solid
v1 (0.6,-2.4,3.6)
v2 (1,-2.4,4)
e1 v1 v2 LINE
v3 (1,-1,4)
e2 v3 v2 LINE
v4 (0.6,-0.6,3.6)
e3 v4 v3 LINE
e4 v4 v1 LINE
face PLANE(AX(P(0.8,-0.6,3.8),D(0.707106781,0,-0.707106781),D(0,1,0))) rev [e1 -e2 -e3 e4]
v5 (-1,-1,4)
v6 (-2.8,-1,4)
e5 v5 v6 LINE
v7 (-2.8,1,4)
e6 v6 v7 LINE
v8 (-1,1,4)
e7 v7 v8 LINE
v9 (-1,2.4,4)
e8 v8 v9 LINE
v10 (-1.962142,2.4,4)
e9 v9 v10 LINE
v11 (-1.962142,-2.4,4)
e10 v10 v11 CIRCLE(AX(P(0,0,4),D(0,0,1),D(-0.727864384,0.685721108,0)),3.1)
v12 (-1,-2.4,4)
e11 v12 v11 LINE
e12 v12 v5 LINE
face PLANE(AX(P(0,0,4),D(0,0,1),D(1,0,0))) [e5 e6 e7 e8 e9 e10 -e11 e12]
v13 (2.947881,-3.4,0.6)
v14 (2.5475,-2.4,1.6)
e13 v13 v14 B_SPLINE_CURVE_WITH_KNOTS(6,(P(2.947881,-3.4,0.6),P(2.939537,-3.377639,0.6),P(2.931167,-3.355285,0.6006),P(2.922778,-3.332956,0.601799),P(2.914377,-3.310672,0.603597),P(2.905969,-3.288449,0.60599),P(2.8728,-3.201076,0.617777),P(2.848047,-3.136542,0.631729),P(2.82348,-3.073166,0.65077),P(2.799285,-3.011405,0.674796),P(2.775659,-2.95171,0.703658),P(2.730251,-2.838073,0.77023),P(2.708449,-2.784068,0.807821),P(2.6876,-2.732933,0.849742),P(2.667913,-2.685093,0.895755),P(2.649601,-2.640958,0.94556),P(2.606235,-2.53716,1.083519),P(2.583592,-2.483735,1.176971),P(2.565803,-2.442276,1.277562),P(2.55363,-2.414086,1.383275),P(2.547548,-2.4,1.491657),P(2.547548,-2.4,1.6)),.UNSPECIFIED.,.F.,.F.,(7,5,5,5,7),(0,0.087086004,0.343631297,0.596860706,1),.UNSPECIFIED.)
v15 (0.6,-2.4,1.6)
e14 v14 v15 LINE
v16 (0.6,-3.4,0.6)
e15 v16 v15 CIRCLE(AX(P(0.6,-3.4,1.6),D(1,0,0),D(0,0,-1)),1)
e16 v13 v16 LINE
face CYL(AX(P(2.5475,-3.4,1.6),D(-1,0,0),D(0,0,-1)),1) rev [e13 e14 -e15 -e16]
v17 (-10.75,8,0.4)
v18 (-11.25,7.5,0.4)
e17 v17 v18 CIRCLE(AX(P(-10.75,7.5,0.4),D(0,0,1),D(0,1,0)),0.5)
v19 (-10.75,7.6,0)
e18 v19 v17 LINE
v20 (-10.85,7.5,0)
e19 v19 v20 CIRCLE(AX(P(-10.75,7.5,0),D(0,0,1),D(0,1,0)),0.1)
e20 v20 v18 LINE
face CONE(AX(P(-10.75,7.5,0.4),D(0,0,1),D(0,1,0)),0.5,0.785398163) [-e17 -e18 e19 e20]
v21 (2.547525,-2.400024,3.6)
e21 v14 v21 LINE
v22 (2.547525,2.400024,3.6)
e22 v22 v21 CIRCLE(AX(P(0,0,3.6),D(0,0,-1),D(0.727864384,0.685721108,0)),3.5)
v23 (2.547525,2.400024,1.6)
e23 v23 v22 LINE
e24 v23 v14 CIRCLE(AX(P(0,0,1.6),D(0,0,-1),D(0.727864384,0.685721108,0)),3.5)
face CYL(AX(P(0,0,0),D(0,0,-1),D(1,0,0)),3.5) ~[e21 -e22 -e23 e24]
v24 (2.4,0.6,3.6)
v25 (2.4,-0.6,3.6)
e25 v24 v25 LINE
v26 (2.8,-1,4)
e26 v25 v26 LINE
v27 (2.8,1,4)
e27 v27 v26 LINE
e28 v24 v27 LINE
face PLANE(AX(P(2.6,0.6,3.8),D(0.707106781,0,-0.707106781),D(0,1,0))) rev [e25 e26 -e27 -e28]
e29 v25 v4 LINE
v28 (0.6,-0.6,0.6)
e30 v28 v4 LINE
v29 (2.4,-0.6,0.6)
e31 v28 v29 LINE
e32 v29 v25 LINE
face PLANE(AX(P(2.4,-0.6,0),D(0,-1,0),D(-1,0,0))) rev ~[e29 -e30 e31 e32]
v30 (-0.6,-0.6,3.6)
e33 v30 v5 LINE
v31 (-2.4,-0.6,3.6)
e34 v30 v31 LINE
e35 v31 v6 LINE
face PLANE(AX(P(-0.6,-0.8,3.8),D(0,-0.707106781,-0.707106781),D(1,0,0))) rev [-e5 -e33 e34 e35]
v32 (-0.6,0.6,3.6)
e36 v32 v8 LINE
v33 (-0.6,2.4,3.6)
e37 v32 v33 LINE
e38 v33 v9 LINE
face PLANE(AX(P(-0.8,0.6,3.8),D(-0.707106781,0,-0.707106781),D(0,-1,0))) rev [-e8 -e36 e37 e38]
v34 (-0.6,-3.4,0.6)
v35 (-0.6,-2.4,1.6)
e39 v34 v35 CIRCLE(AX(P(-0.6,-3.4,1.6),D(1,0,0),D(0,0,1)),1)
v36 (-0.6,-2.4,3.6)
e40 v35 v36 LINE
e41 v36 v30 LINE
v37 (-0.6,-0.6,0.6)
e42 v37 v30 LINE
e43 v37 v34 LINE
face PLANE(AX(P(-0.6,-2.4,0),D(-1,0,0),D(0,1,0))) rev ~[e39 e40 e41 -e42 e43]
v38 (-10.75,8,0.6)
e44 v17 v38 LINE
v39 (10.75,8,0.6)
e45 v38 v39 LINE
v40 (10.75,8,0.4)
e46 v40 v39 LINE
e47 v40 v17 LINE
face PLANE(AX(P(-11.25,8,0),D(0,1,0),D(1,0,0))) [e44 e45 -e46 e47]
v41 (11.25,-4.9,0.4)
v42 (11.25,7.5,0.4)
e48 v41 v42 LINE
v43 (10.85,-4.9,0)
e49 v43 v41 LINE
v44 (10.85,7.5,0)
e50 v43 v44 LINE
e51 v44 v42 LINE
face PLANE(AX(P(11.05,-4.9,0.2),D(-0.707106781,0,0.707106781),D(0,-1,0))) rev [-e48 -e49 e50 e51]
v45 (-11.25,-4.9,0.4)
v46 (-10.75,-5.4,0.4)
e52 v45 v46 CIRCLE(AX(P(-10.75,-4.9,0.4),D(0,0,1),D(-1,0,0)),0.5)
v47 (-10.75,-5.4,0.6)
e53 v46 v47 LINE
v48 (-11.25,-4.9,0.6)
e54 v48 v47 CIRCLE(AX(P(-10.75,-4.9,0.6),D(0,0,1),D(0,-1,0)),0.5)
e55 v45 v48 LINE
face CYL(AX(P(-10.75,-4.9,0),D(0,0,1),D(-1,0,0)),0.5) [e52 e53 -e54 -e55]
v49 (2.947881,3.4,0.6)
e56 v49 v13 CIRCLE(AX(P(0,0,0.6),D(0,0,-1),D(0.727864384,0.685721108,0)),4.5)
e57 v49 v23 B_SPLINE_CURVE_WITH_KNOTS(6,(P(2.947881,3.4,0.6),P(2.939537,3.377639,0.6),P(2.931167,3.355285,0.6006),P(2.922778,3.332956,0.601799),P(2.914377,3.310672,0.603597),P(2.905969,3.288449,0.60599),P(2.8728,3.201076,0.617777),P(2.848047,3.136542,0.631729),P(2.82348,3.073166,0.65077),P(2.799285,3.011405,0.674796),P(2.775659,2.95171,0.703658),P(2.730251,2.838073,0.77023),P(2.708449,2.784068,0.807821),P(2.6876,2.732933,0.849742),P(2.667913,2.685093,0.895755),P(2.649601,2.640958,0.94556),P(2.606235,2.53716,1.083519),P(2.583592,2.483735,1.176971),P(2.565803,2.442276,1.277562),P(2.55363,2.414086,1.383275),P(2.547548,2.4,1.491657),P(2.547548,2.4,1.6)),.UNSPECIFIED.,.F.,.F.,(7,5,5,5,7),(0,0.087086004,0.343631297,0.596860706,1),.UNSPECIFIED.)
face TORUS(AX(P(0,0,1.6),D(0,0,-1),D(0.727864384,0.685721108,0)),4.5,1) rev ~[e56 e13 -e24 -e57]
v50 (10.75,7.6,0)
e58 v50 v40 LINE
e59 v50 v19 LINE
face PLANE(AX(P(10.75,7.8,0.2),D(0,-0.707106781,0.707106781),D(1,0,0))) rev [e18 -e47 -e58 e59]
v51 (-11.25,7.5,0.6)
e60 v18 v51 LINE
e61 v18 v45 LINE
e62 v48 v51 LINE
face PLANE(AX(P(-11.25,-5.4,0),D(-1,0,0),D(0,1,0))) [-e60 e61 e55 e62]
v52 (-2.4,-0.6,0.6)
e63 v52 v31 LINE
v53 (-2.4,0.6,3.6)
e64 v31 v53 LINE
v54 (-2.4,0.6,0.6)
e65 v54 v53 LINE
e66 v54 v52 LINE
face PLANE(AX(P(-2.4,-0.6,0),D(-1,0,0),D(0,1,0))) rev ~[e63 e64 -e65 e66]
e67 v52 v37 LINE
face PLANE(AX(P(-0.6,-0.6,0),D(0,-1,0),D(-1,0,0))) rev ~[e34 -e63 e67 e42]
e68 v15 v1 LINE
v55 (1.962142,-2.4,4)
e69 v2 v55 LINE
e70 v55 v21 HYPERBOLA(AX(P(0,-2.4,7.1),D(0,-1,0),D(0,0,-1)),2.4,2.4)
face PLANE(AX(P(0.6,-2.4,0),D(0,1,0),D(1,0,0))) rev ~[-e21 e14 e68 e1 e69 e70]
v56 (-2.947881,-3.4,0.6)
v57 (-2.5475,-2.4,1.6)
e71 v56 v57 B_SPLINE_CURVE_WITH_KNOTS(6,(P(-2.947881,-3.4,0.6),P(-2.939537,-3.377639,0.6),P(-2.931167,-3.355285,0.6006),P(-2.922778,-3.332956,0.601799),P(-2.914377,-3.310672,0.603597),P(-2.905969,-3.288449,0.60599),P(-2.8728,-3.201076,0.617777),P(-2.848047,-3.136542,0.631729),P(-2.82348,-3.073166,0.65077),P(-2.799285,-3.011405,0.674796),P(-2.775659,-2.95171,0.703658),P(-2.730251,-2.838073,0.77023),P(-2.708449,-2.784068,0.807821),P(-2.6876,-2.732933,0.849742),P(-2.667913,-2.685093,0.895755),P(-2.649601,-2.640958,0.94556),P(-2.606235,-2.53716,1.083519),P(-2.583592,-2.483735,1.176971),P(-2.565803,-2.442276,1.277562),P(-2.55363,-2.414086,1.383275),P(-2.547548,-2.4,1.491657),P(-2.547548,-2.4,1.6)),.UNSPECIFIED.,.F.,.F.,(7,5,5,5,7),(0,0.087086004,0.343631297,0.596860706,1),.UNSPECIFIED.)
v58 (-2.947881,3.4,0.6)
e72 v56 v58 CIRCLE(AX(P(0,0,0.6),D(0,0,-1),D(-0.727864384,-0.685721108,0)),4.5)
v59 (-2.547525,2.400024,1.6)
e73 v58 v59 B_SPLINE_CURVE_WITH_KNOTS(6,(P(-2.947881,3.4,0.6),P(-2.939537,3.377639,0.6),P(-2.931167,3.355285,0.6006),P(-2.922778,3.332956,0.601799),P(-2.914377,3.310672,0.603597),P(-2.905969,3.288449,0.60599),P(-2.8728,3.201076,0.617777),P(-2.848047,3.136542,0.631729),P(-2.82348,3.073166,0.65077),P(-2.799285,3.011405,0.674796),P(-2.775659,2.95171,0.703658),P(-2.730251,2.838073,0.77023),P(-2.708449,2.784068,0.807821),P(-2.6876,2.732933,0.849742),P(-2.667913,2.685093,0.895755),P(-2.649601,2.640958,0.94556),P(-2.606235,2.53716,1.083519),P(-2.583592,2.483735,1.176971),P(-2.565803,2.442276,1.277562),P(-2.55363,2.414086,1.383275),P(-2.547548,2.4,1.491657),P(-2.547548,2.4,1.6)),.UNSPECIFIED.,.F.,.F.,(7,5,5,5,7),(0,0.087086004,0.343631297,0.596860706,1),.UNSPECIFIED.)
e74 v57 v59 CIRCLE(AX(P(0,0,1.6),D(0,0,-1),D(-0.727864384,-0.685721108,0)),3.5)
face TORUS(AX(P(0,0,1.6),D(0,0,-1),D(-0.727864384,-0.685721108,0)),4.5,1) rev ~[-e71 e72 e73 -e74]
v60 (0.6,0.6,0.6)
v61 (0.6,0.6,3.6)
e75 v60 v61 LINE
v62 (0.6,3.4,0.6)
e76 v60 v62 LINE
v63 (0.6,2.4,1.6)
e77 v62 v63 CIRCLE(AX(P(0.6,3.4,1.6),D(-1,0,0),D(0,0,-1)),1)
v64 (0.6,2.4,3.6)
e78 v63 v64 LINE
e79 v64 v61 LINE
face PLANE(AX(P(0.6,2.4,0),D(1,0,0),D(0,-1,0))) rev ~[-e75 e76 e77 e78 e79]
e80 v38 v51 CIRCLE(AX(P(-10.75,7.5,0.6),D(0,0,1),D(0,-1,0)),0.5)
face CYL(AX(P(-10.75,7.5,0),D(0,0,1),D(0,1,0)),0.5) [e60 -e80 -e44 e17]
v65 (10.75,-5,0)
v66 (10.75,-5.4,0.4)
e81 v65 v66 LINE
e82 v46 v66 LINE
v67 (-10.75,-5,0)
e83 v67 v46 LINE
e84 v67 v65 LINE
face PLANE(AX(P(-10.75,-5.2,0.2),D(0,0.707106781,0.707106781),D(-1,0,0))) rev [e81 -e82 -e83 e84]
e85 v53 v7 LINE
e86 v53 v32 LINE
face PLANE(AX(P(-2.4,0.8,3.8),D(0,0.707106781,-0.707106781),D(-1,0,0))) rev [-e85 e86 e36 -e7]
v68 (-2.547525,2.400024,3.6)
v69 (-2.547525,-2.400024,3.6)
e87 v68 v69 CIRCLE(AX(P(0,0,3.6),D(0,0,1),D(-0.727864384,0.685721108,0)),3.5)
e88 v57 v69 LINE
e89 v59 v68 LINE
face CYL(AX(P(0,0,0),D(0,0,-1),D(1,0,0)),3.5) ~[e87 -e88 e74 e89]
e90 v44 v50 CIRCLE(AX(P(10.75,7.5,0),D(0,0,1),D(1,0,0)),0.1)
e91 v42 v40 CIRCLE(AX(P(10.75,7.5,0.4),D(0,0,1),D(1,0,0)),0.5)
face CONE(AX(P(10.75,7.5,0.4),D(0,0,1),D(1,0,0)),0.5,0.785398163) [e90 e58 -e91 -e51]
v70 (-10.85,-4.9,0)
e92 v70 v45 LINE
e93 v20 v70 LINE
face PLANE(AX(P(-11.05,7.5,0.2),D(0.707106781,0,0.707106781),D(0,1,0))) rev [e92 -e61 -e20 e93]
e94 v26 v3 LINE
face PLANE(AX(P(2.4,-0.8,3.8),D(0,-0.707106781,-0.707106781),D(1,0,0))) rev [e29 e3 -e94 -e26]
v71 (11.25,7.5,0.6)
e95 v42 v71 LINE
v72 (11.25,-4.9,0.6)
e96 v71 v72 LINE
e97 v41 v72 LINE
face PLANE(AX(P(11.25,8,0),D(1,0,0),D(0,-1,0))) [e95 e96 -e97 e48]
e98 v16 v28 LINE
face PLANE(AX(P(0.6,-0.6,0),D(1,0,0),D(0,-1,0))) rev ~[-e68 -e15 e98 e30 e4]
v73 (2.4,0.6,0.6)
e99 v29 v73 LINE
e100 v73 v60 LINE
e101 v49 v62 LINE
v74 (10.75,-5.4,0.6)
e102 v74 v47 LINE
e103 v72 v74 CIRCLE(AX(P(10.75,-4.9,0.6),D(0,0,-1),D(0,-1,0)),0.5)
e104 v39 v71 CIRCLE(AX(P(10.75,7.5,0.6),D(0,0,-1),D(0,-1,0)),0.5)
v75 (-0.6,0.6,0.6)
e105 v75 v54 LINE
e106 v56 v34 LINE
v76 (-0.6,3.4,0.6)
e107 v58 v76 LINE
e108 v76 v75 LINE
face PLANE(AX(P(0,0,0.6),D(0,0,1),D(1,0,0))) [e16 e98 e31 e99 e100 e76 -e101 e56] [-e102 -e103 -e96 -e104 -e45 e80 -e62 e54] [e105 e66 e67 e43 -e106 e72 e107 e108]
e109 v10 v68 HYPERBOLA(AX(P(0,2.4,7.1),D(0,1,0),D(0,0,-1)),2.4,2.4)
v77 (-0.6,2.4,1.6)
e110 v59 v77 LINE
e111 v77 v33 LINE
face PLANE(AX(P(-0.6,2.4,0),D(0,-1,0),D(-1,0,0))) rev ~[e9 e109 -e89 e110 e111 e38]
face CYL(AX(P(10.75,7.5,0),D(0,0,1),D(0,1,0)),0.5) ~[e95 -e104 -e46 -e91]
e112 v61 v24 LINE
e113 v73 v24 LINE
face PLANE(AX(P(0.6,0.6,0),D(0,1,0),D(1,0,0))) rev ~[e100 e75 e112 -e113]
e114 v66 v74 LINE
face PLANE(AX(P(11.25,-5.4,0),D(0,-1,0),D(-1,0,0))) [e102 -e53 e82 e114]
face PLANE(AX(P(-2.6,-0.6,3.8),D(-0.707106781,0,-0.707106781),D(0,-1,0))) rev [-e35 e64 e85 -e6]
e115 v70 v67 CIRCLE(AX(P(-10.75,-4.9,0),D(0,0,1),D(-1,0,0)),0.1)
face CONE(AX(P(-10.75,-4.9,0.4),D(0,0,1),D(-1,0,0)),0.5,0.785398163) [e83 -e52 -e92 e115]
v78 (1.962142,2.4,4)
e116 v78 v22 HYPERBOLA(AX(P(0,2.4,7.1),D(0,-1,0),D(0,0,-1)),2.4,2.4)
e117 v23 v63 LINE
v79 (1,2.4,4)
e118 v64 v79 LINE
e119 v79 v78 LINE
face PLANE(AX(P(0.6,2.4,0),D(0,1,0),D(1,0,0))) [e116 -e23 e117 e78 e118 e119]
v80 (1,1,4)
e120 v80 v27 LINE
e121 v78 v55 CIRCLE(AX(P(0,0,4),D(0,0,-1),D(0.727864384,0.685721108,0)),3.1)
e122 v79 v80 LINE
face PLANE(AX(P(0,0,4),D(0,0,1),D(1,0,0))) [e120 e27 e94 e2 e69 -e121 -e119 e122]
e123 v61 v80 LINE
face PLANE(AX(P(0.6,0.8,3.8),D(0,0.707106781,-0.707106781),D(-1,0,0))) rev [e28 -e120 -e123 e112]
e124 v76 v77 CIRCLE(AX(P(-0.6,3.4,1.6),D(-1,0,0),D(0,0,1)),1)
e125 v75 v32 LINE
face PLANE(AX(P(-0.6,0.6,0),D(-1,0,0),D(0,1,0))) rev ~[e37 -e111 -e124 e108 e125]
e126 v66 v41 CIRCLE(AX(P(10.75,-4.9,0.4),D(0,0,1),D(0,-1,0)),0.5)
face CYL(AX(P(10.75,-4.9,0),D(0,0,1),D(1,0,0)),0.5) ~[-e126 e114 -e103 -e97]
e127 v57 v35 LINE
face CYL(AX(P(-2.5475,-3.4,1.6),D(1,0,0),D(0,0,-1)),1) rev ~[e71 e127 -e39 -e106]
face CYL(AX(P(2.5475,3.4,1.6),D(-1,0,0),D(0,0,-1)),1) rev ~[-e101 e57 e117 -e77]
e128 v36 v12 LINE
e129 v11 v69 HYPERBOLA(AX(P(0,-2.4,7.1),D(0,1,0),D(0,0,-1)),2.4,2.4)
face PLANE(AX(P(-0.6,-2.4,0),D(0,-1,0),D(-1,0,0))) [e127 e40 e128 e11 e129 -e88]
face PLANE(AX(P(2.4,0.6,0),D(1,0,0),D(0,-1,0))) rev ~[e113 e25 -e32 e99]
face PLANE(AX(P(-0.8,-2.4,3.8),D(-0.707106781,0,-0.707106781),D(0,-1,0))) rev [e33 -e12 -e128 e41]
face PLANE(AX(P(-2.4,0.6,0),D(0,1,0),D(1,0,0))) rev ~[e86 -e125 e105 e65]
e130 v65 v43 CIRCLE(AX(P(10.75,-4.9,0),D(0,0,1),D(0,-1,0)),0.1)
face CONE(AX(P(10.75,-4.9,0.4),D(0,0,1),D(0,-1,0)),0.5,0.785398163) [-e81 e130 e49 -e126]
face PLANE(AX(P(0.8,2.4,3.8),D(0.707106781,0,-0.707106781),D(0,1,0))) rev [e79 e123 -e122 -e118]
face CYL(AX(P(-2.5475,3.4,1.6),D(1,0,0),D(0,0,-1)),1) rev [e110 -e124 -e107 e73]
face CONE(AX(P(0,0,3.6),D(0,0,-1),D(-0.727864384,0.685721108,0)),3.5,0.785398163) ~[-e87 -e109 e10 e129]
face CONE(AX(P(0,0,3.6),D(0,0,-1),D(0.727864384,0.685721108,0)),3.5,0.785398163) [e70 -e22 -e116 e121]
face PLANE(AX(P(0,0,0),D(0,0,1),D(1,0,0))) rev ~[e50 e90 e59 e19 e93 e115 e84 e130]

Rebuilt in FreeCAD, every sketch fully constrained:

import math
import FreeCAD as App
import Part
import Sketcher
from FreeCAD import Vector


def edges_at(feature, points):
    """Names of the edges that pass closest to the given points."""
    edges = feature.Shape.Edges
    near = lambda p: min(range(len(edges)), key=lambda i: edges[i].distToShape(Part.Vertex(*p))[0])
    return sorted({f"Edge{near(p) + 1}" for p in points})

doc = App.newDocument("Part")
body = doc.addObject("PartDesign::Body", "Body")

# Sketch on XY plane
sketch1 = doc.addObject("Sketcher::SketchObject", "Sketch")
body.addObject(sketch1)
sketch1.AttachmentSupport = (doc.XY_Plane, [""])
sketch1.MapMode = "FlatFace"
sketch1.addGeometry([
    Part.LineSegment(Vector(11, 8, 0), Vector(-11, 8, 0)),
    Part.LineSegment(Vector(-11, 8, 0), Vector(-11, -5, 0)),
    Part.LineSegment(Vector(-11, -5, 0), Vector(11, -5, 0)),
    Part.LineSegment(Vector(11, -5, 0), Vector(11, 8, 0)),
], False)
sketch1.addConstraint([
    Sketcher.Constraint("Coincident", 0, 2, 1, 1),
    Sketcher.Constraint("Coincident", 1, 2, 2, 1),
    Sketcher.Constraint("Coincident", 2, 2, 3, 1),
    Sketcher.Constraint("Coincident", 3, 2, 0, 1),
    Sketcher.Constraint("Horizontal", 0),
    Sketcher.Constraint("Vertical", 1),
    Sketcher.Constraint("Horizontal", 2),
    Sketcher.Constraint("Vertical", 3),
    Sketcher.Constraint("DistanceX", 0, 2, 0, 1, 22.5),
    Sketcher.Constraint("DistanceY", 1, 2, 1, 1, 13.4),
    Sketcher.Constraint("DistanceY", -1, 1, 0, 2, 8.0),
    Sketcher.Constraint("DistanceX", 0, 2, -1, 1, 11.25),
])
pad1 = doc.addObject("PartDesign::Pad", "Pad")
body.addObject(pad1)
pad1.Profile = sketch1
pad1.Length = 0.6

# Sketch on XY plane
sketch2 = doc.addObject("Sketcher::SketchObject", "Sketch001")
body.addObject(sketch2)
sketch2.AttachmentSupport = (doc.XY_Plane, [""])
sketch2.MapMode = "FlatFace"
sketch2.addGeometry([
    Part.ArcOfCircle(Part.Circle(Vector(0, 0, 0), Vector(0, 0, 1), 3.5), math.radians(-43), math.radians(43)),  # 0
    Part.LineSegment(Vector(2.5, 2.4, 0), Vector(0.6, 2.4, 0)),  # 1
    Part.LineSegment(Vector(0.6, 2.4, 0), Vector(0.6, 0.6, 0)),  # 2
    Part.LineSegment(Vector(0.6, 0.6, 0), Vector(2.4, 0.6, 0)),  # 3
    Part.LineSegment(Vector(2.4, 0.6, 0), Vector(2.4, -0.6, 0)),  # 4
    Part.LineSegment(Vector(2.4, -0.6, 0), Vector(0.6, -0.6, 0)),  # 5
    Part.LineSegment(Vector(0.6, -0.6, 0), Vector(0.6, -2.4, 0)),  # 6
    Part.LineSegment(Vector(0.6, -2.4, 0), Vector(2.5, -2.4, 0)),  # 7
    Part.LineSegment(Vector(-0.6, 2.4, 0), Vector(-2.5, 2.4, 0)),  # 8
    Part.ArcOfCircle(Part.Circle(Vector(0, 0, 0), Vector(0, 0, 1), 3.5), math.radians(137), math.radians(223)),  # 9
    Part.LineSegment(Vector(-2.5, -2.4, 0), Vector(-0.6, -2.4, 0)),  # 10
    Part.LineSegment(Vector(-0.6, -2.4, 0), Vector(-0.6, -0.6, 0)),  # 11
    Part.LineSegment(Vector(-0.6, -0.6, 0), Vector(-2.4, -0.6, 0)),  # 12
    Part.LineSegment(Vector(-2.4, -0.6, 0), Vector(-2.4, 0.6, 0)),  # 13
    Part.LineSegment(Vector(-2.4, 0.6, 0), Vector(-0.6, 0.6, 0)),  # 14
    Part.LineSegment(Vector(-0.6, 0.6, 0), Vector(-0.6, 2.4, 0)),  # 15
], False)
sketch2.addConstraint([
    Sketcher.Constraint("Coincident", 0, 2, 1, 1),
    Sketcher.Constraint("Coincident", 1, 2, 2, 1),
    Sketcher.Constraint("Coincident", 2, 2, 3, 1),
    Sketcher.Constraint("Coincident", 3, 2, 4, 1),
    Sketcher.Constraint("Coincident", 4, 2, 5, 1),
    Sketcher.Constraint("Coincident", 5, 2, 6, 1),
    Sketcher.Constraint("Coincident", 6, 2, 7, 1),
    Sketcher.Constraint("Coincident", 7, 2, 0, 1),
    Sketcher.Constraint("Coincident", 8, 2, 9, 1),
    Sketcher.Constraint("Coincident", 9, 2, 10, 1),
    Sketcher.Constraint("Coincident", 10, 2, 11, 1),
    Sketcher.Constraint("Coincident", 11, 2, 12, 1),
    Sketcher.Constraint("Coincident", 12, 2, 13, 1),
    Sketcher.Constraint("Coincident", 13, 2, 14, 1),
    Sketcher.Constraint("Coincident", 14, 2, 15, 1),
    Sketcher.Constraint("Coincident", 15, 2, 8, 1),
    Sketcher.Constraint("Horizontal", 1),
    Sketcher.Constraint("Vertical", 2),
    Sketcher.Constraint("Horizontal", 3),
    Sketcher.Constraint("Vertical", 4),
    Sketcher.Constraint("Horizontal", 5),
    Sketcher.Constraint("Vertical", 6),
    Sketcher.Constraint("Horizontal", 7),
    Sketcher.Constraint("Horizontal", 8),
    Sketcher.Constraint("Horizontal", 10),
    Sketcher.Constraint("Vertical", 11),
    Sketcher.Constraint("Horizontal", 12),
    Sketcher.Constraint("Vertical", 13),
    Sketcher.Constraint("Horizontal", 14),
    Sketcher.Constraint("Vertical", 15),
    Sketcher.Constraint("Coincident", 0, 3, -1, 1),
    Sketcher.Constraint("Coincident", 9, 3, -1, 1),
    Sketcher.Constraint("Equal", 0, 9),
    Sketcher.Constraint("Symmetric", 1, 2, 10, 2, -1, 1),
    Sketcher.Constraint("Symmetric", 3, 2, 12, 2, -1, 1),
    Sketcher.Constraint("Symmetric", 5, 2, 14, 2, -1, 1),
    Sketcher.Constraint("Symmetric", 6, 2, 10, 2, -2),
    Sketcher.Constraint("Horizontal", 1, 2, 8, 2),
    Sketcher.Constraint("Horizontal", 5, 2, 11, 2),
    Sketcher.Constraint("Equal", 14, 2),
    Sketcher.Constraint("Radius", 0, 3.5),
    Sketcher.Constraint("DistanceY", 4, 2, 4, 1, 1.2),
    Sketcher.Constraint("DistanceX", 10, 2, 6, 2, 1.2),
    Sketcher.Constraint("DistanceX", 3, 1, 3, 2, 1.8),
])
pad2 = doc.addObject("PartDesign::Pad", "Pad001")
body.addObject(pad2)
pad2.Profile = sketch2
pad2.Length = 4
doc.recompute()

fillet = doc.addObject("PartDesign::Fillet", "Fillet")
body.addObject(fillet)
fillet.Base = (pad2, edges_at(pad2, [
    (-1.574, -2.4, 0.6),
    (-3.5, 0, 0.6),
    (1.574, -2.4, 0.6),
    (3.5, 0, 0.6),
    (1.574, 2.4, 0.6),
    (-1.574, 2.4, 0.6),
]))
fillet.Radius = 1
doc.recompute()

fillet2 = doc.addObject("PartDesign::Fillet", "Fillet001")
body.addObject(fillet2)
fillet2.Base = (fillet, edges_at(fillet, [
    (11.25, 8, 0.3),
    (-11.25, 8, 0.3),
    (11.25, -5.4, 0.3),
    (-11.25, -5.4, 0.3),
]))
fillet2.Radius = 0.5
doc.recompute()

chamfer = doc.addObject("PartDesign::Chamfer", "Chamfer")
body.addObject(chamfer)
chamfer.Base = (fillet2, edges_at(fillet2, [
    (-11.104, 7.854, 0),
    (0, 8, 0),
    (11.104, 7.854, 0),
    (11.25, 1.3, 0),
    (11.104, -5.254, 0),
    (0, -5.4, 0),
    (-11.104, -5.254, 0),
    (-11.25, 1.3, 0),
    (-0.6, 1.5, 4),
    (-1.5, 0.6, 4),
    (-2.4, 0, 4),
    (-1.5, -0.6, 4),
    (-0.6, -1.5, 4),
    (0.6, -1.5, 4),
    (1.5, -0.6, 4),
    (2.4, 0, 4),
    (1.5, 0.6, 4),
    (0.6, 1.5, 4),
    (3.5, 0, 4),
    (-3.5, 0, 4),
]))
chamfer.Size = 0.4

doc.recompute()
